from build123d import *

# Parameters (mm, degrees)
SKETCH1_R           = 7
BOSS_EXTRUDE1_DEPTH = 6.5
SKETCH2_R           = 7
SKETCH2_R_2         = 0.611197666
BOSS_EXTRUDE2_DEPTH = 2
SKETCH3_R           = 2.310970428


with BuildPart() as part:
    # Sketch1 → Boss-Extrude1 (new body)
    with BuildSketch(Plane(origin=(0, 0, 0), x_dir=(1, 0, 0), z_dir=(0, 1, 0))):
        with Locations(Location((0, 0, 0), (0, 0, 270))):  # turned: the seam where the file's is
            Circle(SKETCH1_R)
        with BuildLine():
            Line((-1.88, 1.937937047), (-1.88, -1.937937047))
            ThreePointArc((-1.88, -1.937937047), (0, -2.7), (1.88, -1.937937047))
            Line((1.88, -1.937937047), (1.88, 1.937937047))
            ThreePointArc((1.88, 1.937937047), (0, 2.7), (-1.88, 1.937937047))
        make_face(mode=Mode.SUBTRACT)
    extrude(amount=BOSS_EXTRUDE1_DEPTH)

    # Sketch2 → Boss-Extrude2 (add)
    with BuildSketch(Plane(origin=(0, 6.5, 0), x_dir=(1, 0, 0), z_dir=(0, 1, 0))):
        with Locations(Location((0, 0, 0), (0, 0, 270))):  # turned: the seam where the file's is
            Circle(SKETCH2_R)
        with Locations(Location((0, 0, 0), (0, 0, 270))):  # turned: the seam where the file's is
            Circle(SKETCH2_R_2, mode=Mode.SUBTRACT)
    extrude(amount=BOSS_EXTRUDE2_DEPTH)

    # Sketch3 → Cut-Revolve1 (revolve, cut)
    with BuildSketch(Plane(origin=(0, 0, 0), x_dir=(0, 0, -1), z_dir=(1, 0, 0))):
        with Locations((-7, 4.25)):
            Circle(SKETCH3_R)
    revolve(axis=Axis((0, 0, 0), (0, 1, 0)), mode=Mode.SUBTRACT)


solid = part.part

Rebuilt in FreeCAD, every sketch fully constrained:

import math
import FreeCAD as App
import Part
import Sketcher
Q = App.Units.Quantity

doc = App.newDocument("Part")
body = doc.addObject("PartDesign::Body", "Body")

sketch1 = body.newObject("Sketcher::SketchObject", "Sketch")
sketch1.AttachmentSupport = (doc.getObject("XZ_Plane"), [""])
sketch1.MapMode = "FlatFace"
sketch1.addGeometry(Part.Circle(App.Vector(0, 0, 0), App.Vector(0, 0, 1), 7), False)
sketch1.addGeometry(Part.LineSegment(App.Vector(-1.9, 1.9, 0), App.Vector(-1.9, -1.9, 0)), False)
sketch1.addGeometry(Part.ArcOfCircle(Part.Circle(App.Vector(0, 0, 0), App.Vector(0, 0, 1), 2.7), math.radians(-134), math.radians(-46)), False)
sketch1.addGeometry(Part.LineSegment(App.Vector(1.9, -1.9, 0), App.Vector(1.9, 1.9, 0)), False)
sketch1.addGeometry(Part.ArcOfCircle(Part.Circle(App.Vector(0, 0, 0), App.Vector(0, 0, 1), 2.7), math.radians(46), math.radians(134)), False)
sketch1.addConstraint(Sketcher.Constraint("Coincident", 1, 2, 2, 1))
sketch1.addConstraint(Sketcher.Constraint("Coincident", 2, 2, 3, 1))
sketch1.addConstraint(Sketcher.Constraint("Coincident", 3, 2, 4, 1))
sketch1.addConstraint(Sketcher.Constraint("Coincident", 4, 2, 1, 1))
sketch1.addConstraint(Sketcher.Constraint("Vertical", 1))
sketch1.addConstraint(Sketcher.Constraint("Vertical", 3))
sketch1.addConstraint(Sketcher.Constraint("Coincident", 0, 3, -1, 1))
sketch1.addConstraint(Sketcher.Constraint("Coincident", 2, 3, -1, 1))
sketch1.addConstraint(Sketcher.Constraint("Coincident", 4, 3, -1, 1))
sketch1.addConstraint(Sketcher.Constraint("Equal", 2, 4))
sketch1.addConstraint(Sketcher.Constraint("Horizontal", 1, 2, 2, 2))
sketch1.addConstraint(Sketcher.Constraint("Diameter", 0, Q("14 mm")))
sketch1.addConstraint(Sketcher.Constraint("Radius", 2, Q("2.7 mm")))
sketch1.addConstraint(Sketcher.Constraint("DistanceX", 1, 2, -1, 1, Q("1.88 mm")))
pad1 = body.newObject("PartDesign::Pad", "Pad")
pad1.Profile = sketch1
pad1.Length = 6.5
pad1.Reversed = True

sketch2 = body.newObject("Sketcher::SketchObject", "Sketch001")
sketch2.AttachmentSupport = (doc.getObject("XZ_Plane"), [""])
sketch2.MapMode = "FlatFace"
sketch2.AttachmentOffset = App.Placement(App.Vector(0, 0, -6.5), App.Rotation())
sketch2.addGeometry(Part.Circle(App.Vector(0, 0, 0), App.Vector(0, 0, 1), 7), False)
sketch2.addGeometry(Part.Circle(App.Vector(0, 0, 0), App.Vector(0, 0, 1), 0.6), False)
sketch2.addConstraint(Sketcher.Constraint("Coincident", 0, 3, -1, 1))
sketch2.addConstraint(Sketcher.Constraint("Coincident", 1, 3, -1, 1))
sketch2.addConstraint(Sketcher.Constraint("Diameter", 0, Q("14 mm")))
sketch2.addConstraint(Sketcher.Constraint("Diameter", 1, Q("1.222395 mm")))
pad2 = body.newObject("PartDesign::Pad", "Pad001")
pad2.Profile = sketch2
pad2.Length = 2
pad2.Reversed = True

sketch3 = body.newObject("Sketcher::SketchObject", "Sketch002")
sketch3.AttachmentSupport = (doc.getObject("YZ_Plane"), [""])
sketch3.MapMode = "FlatFace"
sketch3.addGeometry(Part.Circle(App.Vector(4.2, 7, 0), App.Vector(0, 0, 1), 2.3), False)
sketch3.addConstraint(Sketcher.Constraint("DistanceY", -1, 1, 0, 3, Q("7 mm")))
sketch3.addConstraint(Sketcher.Constraint("Diameter", 0, Q("4.621941 mm")))
sketch3.addConstraint(Sketcher.Constraint("DistanceX", -1, 1, 0, 3, Q("4.25 mm")))
groove = body.newObject("PartDesign::Groove", "Groove")
groove.Profile = sketch3
groove.ReferenceAxis = (sketch3, ["H_Axis"])
groove.Angle = 360

doc.recompute()
